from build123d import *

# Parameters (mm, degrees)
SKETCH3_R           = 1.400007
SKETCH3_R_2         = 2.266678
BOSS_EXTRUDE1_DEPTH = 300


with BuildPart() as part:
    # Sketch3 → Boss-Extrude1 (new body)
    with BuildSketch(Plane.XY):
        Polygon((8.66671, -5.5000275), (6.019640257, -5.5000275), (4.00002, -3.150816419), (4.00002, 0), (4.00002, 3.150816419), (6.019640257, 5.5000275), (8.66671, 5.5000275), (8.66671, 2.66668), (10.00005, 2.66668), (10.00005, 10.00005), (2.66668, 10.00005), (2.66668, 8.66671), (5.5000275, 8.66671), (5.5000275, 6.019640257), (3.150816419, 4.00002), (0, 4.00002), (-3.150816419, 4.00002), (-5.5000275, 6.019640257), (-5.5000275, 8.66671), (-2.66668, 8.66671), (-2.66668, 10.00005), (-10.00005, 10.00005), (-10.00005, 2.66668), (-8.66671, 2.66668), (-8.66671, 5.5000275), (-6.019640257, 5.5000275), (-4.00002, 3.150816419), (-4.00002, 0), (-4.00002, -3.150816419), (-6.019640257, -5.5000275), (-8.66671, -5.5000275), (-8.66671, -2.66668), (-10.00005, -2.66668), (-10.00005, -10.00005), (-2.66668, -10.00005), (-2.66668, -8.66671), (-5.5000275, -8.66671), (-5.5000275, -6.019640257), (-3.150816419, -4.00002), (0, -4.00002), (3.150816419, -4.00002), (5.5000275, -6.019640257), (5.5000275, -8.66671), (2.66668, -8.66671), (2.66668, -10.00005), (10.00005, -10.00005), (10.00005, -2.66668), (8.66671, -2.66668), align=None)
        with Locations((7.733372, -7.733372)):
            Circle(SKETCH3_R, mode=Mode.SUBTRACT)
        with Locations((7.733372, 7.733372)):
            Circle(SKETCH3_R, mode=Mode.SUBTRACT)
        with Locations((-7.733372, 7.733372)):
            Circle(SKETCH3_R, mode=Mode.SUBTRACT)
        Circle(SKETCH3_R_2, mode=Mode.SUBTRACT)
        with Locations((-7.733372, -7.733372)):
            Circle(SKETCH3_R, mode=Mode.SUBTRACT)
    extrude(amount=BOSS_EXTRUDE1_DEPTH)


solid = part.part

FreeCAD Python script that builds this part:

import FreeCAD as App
import Part
import Sketcher
Q = App.Units.Quantity


def add_polygon(sketch, points):
    """Adds a closed chain of lines whose ends are joined by coincident constraints."""
    first, n = sketch.GeometryCount, len(points)
    for a, b in zip(points, points[1:] + points[:1]):
        sketch.addGeometry(Part.LineSegment(App.Vector(*a, 0), App.Vector(*b, 0)), False)
    for i in range(n):
        sketch.addConstraint(Sketcher.Constraint("Coincident", first + i, 2, first + (i + 1) % n, 1))

doc = App.newDocument("Part")
params = doc.addObject("Spreadsheet::Sheet", "Params")
for row, (alias, value) in enumerate([
    ("pad1_length", "300 mm"),
], start=1):
    params.set(f"A{row}", alias)
    params.set(f"B{row}", "=" + value)
    params.setAlias(f"B{row}", alias)

body = doc.addObject("PartDesign::Body", "Body")

sketch1 = body.newObject("Sketcher::SketchObject", "Sketch")
sketch1.AttachmentSupport = (doc.getObject("XY_Plane"), [""])
sketch1.MapMode = "FlatFace"
add_polygon(sketch1, [(8.66671, -5.500027), (6.01964, -5.500027), (4.00002, -3.150816), (4.00002, 3.150816), (6.01964, 5.500027), (8.66671, 5.500027), (8.66671, 2.66668), (10.00005, 2.66668), (10.00005, 10.00005), (2.66668, 10.00005), (2.66668, 8.66671), (5.500027, 8.66671), (5.500027, 6.01964), (3.150816, 4.00002), (-3.150816, 4.00002), (-5.500027, 6.01964), (-5.500027, 8.66671), (-2.66668, 8.66671), (-2.66668, 10.00005), (-10.00005, 10.00005), (-10.00005, 2.66668), (-8.66671, 2.66668), (-8.66671, 5.500027), (-6.01964, 5.500027), (-4.00002, 3.150816), (-4.00002, -3.150816), (-6.01964, -5.500027), (-8.66671, -5.500027), (-8.66671, -2.66668), (-10.00005, -2.66668), (-10.00005, -10.00005), (-2.66668, -10.00005), (-2.66668, -8.66671), (-5.500027, -8.66671), (-5.500027, -6.01964), (-3.150816, -4.00002), (3.150816, -4.00002), (5.500027, -6.01964), (5.500027, -8.66671), (2.66668, -8.66671), (2.66668, -10.00005), (10.00005, -10.00005), (10.00005, -2.66668), (8.66671, -2.66668)])
sketch1.addGeometry(Part.Circle(App.Vector(-7.733372, -7.733372, 0), App.Vector(0, 0, 1), 1.400007), False)
sketch1.addGeometry(Part.Circle(App.Vector(7.733372, -7.733372, 0), App.Vector(0, 0, 1), 1.400007), False)
sketch1.addGeometry(Part.Circle(App.Vector(-7.733372, 7.733372, 0), App.Vector(0, 0, 1), 1.400007), False)
sketch1.addGeometry(Part.Circle(App.Vector(0, 0, 0), App.Vector(0, 0, 1), 2.266678), False)
sketch1.addGeometry(Part.Circle(App.Vector(7.733372, 7.733372, 0), App.Vector(0, 0, 1), 1.400007), False)
sketch1.addConstraint(Sketcher.Constraint("Horizontal", 0))
sketch1.addConstraint(Sketcher.Constraint("Vertical", 2))
sketch1.addConstraint(Sketcher.Constraint("Horizontal", 4))
sketch1.addConstraint(Sketcher.Constraint("Vertical", 5))
sketch1.addConstraint(Sketcher.Constraint("Horizontal", 6))
sketch1.addConstraint(Sketcher.Constraint("Vertical", 7))
sketch1.addConstraint(Sketcher.Constraint("Horizontal", 8))
sketch1.addConstraint(Sketcher.Constraint("Vertical", 9))
sketch1.addConstraint(Sketcher.Constraint("Horizontal", 10))
sketch1.addConstraint(Sketcher.Constraint("Vertical", 11))
sketch1.addConstraint(Sketcher.Constraint("Horizontal", 13))
sketch1.addConstraint(Sketcher.Constraint("Vertical", 15))
sketch1.addConstraint(Sketcher.Constraint("Horizontal", 16))
sketch1.addConstraint(Sketcher.Constraint("Vertical", 17))
sketch1.addConstraint(Sketcher.Constraint("Horizontal", 18))
sketch1.addConstraint(Sketcher.Constraint("Vertical", 19))
sketch1.addConstraint(Sketcher.Constraint("Horizontal", 20))
sketch1.addConstraint(Sketcher.Constraint("Vertical", 21))
sketch1.addConstraint(Sketcher.Constraint("Horizontal", 22))
sketch1.addConstraint(Sketcher.Constraint("Vertical", 24))
sketch1.addConstraint(Sketcher.Constraint("Horizontal", 26))
sketch1.addConstraint(Sketcher.Constraint("Vertical", 27))
sketch1.addConstraint(Sketcher.Constraint("Horizontal", 28))
sketch1.addConstraint(Sketcher.Constraint("Vertical", 29))
sketch1.addConstraint(Sketcher.Constraint("Horizontal", 30))
sketch1.addConstraint(Sketcher.Constraint("Vertical", 31))
sketch1.addConstraint(Sketcher.Constraint("Horizontal", 32))
sketch1.addConstraint(Sketcher.Constraint("Vertical", 33))
sketch1.addConstraint(Sketcher.Constraint("Horizontal", 35))
sketch1.addConstraint(Sketcher.Constraint("Vertical", 37))
sketch1.addConstraint(Sketcher.Constraint("Horizontal", 38))
sketch1.addConstraint(Sketcher.Constraint("Vertical", 39))
sketch1.addConstraint(Sketcher.Constraint("Horizontal", 40))
sketch1.addConstraint(Sketcher.Constraint("Vertical", 41))
sketch1.addConstraint(Sketcher.Constraint("Horizontal", 42))
sketch1.addConstraint(Sketcher.Constraint("Vertical", 43))
sketch1.addConstraint(Sketcher.Constraint("Coincident", 47, 3, -1, 1))
sketch1.addConstraint(Sketcher.Constraint("Equal", 44, 45))
sketch1.addConstraint(Sketcher.Constraint("Equal", 45, 46))
sketch1.addConstraint(Sketcher.Constraint("Equal", 46, 48))
sketch1.addConstraint(Sketcher.Constraint("Symmetric", 45, 3, 46, 3, -1, 1))
sketch1.addConstraint(Sketcher.Constraint("Symmetric", 44, 3, 48, 3, -1, 1))
sketch1.addConstraint(Sketcher.Constraint("Symmetric", 0, 2, 22, 2, -1, 1))
sketch1.addConstraint(Sketcher.Constraint("Symmetric", 1, 2, 23, 2, -1, 1))
sketch1.addConstraint(Sketcher.Constraint("Symmetric", 3, 2, 25, 2, -1, 1))
sketch1.addConstraint(Sketcher.Constraint("Symmetric", 5, 2, 27, 2, -1, 1))
sketch1.addConstraint(Sketcher.Constraint("Symmetric", 7, 2, 29, 2, -1, 1))
sketch1.addConstraint(Sketcher.Constraint("Symmetric", 9, 2, 31, 2, -1, 1))
sketch1.addConstraint(Sketcher.Constraint("Symmetric", 11, 2, 33, 2, -1, 1))
sketch1.addConstraint(Sketcher.Constraint("Symmetric", 12, 2, 34, 2, -1, 1))
sketch1.addConstraint(Sketcher.Constraint("Symmetric", 14, 2, 36, 2, -1, 1))
sketch1.addConstraint(Sketcher.Constraint("Symmetric", 16, 2, 38, 2, -1, 1))
sketch1.addConstraint(Sketcher.Constraint("Symmetric", 18, 2, 40, 2, -1, 1))
sketch1.addConstraint(Sketcher.Constraint("Symmetric", 20, 2, 42, 2, -1, 1))
sketch1.addConstraint(Sketcher.Constraint("Symmetric", 44, 3, 45, 3, -2))
sketch1.addConstraint(Sketcher.Constraint("Symmetric", 11, 2, 14, 2, -2))
sketch1.addConstraint(Sketcher.Constraint("Symmetric", 9, 2, 16, 2, -2))
sketch1.addConstraint(Sketcher.Constraint("Symmetric", 7, 2, 18, 2, -2))
sketch1.addConstraint(Sketcher.Constraint("Symmetric", 5, 2, 20, 2, -2))
sketch1.addConstraint(Sketcher.Constraint("Symmetric", 3, 2, 22, 2, -2))
sketch1.addConstraint(Sketcher.Constraint("Perpendicular", 1, 12))
sketch1.addConstraint(Sketcher.Constraint("Perpendicular", 3, 14))
sketch1.addConstraint(Sketcher.Constraint("Perpendicular", 14, 25))
sketch1.addConstraint(Sketcher.Constraint("Perpendicular", 25, 36))
sketch1.addConstraint(Sketcher.Constraint("Horizontal", 2, 2, 23, 2))
sketch1.addConstraint(Sketcher.Constraint("Equal", 35, 2))
sketch1.addConstraint(Sketcher.Constraint("Equal", 38, 5))
sketch1.addConstraint(Sketcher.Constraint("Equal", 40, 7))
sketch1.addConstraint(Sketcher.Constraint("Equal", 42, 9))
sketch1.addConstraint(Sketcher.Constraint("Equal", 26, 11))
sketch1.addConstraint(Sketcher.Constraint("Equal", 3, 12))
sketch1.addConstraint(Sketcher.Constraint("Diameter", 44, Q("2.800014 mm")))
sketch1.addConstraint(Sketcher.Constraint("Diameter", 47, Q("4.533356 mm")))
sketch1.addConstraint(Sketcher.Constraint("DistanceX", 0, 2, 0, 1, Q("2.64707 mm")))
sketch1.addConstraint(Sketcher.Constraint("DistanceX", 6, 1, 6, 2, Q("1.33334 mm")))
sketch1.addConstraint(Sketcher.Constraint("DistanceX", 8, 2, 8, 1, Q("7.33337 mm")))
sketch1.addConstraint(Sketcher.Constraint("DistanceY", 0, 2, 48, 3, Q("13.2334 mm")))
sketch1.addConstraint(Sketcher.Constraint("Distance", 1, Q("3.098009 mm")))
sketch1.addConstraint(Sketcher.Constraint("DistanceX", 10, 1, 10, 2, Q("2.833347 mm")))
sketch1.addConstraint(Sketcher.Constraint("DistanceX", 13, 2, 13, 1, Q("6.301633 mm")))
sketch1.addConstraint(Sketcher.Constraint("DistanceX", -1, 1, 0, 2, Q("6.01964 mm")))
sketch1.addConstraint(Sketcher.Constraint("DistanceX", 0, 2, 45, 3, Q("1.713732 mm")))
pad1 = body.newObject("PartDesign::Pad", "Pad")
pad1.Profile = sketch1
pad1.setExpression("Length", "Params.pad1_length")

doc.recompute()
